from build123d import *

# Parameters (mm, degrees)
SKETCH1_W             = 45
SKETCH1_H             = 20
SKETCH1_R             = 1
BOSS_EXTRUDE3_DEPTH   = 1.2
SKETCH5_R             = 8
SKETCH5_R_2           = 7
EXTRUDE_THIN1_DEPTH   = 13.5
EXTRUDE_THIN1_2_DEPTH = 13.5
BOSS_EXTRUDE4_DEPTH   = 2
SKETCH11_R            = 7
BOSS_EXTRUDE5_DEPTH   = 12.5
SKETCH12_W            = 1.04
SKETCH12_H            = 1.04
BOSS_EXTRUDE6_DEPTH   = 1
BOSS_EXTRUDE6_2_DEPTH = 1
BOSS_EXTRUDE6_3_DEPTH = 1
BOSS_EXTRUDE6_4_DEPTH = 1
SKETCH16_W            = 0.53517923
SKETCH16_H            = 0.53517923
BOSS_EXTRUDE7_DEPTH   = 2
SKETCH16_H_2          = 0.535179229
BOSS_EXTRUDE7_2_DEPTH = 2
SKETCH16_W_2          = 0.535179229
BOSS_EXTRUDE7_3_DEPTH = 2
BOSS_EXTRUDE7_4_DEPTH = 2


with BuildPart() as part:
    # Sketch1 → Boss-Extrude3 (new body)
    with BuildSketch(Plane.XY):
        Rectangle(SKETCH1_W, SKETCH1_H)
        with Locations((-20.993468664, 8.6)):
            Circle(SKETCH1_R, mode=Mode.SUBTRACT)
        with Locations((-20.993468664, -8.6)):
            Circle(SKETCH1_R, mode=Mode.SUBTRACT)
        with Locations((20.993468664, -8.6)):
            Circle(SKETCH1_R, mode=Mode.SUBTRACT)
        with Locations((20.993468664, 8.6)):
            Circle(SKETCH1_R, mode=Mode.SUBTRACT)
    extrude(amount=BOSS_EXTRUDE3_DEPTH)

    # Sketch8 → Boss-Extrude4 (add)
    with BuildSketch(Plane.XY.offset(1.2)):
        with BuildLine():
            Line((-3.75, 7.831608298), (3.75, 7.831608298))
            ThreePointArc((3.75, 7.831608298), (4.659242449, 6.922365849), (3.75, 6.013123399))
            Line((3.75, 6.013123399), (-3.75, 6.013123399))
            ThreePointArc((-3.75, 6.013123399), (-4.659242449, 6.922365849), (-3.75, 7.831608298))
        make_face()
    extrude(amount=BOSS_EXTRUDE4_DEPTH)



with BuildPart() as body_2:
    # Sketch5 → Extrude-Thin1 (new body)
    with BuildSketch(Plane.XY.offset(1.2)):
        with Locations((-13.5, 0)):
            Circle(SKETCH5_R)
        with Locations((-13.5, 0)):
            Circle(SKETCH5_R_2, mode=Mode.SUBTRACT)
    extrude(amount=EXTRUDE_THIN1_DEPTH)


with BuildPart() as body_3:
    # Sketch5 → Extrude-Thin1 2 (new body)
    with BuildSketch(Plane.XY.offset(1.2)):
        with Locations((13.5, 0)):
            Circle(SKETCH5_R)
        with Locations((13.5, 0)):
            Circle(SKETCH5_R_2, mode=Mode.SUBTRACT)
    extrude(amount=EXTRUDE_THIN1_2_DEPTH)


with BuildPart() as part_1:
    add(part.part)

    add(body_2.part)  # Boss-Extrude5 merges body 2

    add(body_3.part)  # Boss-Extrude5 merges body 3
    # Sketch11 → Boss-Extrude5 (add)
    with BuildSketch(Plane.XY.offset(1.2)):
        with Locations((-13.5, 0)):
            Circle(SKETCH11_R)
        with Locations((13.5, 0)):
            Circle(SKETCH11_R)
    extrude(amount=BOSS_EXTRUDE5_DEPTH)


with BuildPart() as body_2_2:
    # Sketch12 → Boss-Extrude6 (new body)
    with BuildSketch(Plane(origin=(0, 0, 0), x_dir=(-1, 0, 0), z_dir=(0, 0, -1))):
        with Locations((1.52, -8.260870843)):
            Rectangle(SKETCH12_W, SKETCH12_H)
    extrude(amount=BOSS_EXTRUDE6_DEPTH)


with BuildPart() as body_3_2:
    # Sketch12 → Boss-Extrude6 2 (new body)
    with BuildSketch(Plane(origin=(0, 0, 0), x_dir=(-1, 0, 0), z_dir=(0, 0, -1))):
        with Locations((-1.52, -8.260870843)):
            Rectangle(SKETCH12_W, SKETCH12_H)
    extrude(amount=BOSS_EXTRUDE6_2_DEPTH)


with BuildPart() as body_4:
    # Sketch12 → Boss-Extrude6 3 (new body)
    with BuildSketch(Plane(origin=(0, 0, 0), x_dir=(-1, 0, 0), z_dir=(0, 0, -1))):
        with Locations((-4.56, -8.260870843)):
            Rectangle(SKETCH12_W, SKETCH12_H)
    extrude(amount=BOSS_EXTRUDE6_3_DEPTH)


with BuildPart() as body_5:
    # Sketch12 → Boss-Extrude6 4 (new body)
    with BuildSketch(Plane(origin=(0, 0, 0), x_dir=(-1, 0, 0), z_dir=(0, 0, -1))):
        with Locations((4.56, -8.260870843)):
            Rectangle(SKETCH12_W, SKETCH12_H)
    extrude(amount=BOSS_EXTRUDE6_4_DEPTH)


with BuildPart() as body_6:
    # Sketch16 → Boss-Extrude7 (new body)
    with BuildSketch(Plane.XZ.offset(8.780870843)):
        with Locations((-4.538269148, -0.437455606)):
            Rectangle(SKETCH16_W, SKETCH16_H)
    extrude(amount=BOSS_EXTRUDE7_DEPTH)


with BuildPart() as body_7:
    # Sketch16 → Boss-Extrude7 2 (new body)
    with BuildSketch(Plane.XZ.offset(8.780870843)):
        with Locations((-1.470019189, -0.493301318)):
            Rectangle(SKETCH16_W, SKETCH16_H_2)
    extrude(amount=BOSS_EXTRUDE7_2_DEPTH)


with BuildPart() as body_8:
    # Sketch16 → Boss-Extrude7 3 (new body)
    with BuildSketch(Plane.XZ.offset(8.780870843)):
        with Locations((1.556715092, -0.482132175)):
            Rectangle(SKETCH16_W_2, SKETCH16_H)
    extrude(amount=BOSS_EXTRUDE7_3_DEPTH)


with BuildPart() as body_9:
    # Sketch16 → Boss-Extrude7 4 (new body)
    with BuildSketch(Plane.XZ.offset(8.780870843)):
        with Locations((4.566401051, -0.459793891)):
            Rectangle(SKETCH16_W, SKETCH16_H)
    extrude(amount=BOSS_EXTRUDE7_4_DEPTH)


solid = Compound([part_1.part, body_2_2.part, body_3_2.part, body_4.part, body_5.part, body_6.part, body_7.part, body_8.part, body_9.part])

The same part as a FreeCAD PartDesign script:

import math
import FreeCAD as App
import Part
import Sketcher

V = App.Vector

doc = App.newDocument("Part")
body = doc.addObject("PartDesign::Body", "Body")

# Sketch on XY plane
sketch1 = doc.addObject("Sketcher::SketchObject", "Sketch")
body.addObject(sketch1)
sketch1.AttachmentSupport = (doc.XY_Plane, [""])
sketch1.MapMode = "FlatFace"
sketch1.addGeometry([
    Part.LineSegment(V(-22.5, 10, 0), V(-22.5, -10, 0)),  # 0
    Part.LineSegment(V(-22.5, -10, 0), V(22.5, -10, 0)),  # 1
    Part.LineSegment(V(22.5, -10, 0), V(22.5, 10, 0)),  # 2
    Part.LineSegment(V(22.5, 10, 0), V(-22.5, 10, 0)),  # 3
    Part.Circle(V(-21, -8.6, 0), V(0, 0, 1), 1),  # 4
    Part.Circle(V(21, -8.6, 0), V(0, 0, 1), 1),  # 5
    Part.Circle(V(-21, 8.6, 0), V(0, 0, 1), 1),  # 6
    Part.Circle(V(21, 8.6, 0), V(0, 0, 1), 1),  # 7
], False)
sketch1.addConstraint([
    Sketcher.Constraint("Coincident", 0, 2, 1, 1),
    Sketcher.Constraint("Coincident", 1, 2, 2, 1),
    Sketcher.Constraint("Coincident", 2, 2, 3, 1),
    Sketcher.Constraint("Coincident", 3, 2, 0, 1),
    Sketcher.Constraint("Vertical", 0),
    Sketcher.Constraint("Horizontal", 1),
    Sketcher.Constraint("Vertical", 2),
    Sketcher.Constraint("Horizontal", 3),
    Sketcher.Constraint("Equal", 4, 5),
    Sketcher.Constraint("Equal", 5, 6),
    Sketcher.Constraint("Equal", 6, 7),
    Sketcher.Constraint("Symmetric", 5, 3, 6, 3, -1, 1),
    Sketcher.Constraint("Symmetric", 4, 3, 7, 3, -1, 1),
    Sketcher.Constraint("Symmetric", 0, 2, 2, 2, -1, 1),
    Sketcher.Constraint("Symmetric", 4, 3, 5, 3, -2),
    Sketcher.Constraint("Diameter", 4, 2.0),
    Sketcher.Constraint("DistanceX", 1, 1, 1, 2, 45.0),
    Sketcher.Constraint("DistanceY", 0, 2, 0, 1, 20.0),
    Sketcher.Constraint("DistanceY", 4, 3, -1, 1, 8.6),
    Sketcher.Constraint("DistanceX", 4, 3, -1, 1, 20.993469),
])
pad1 = doc.addObject("PartDesign::Pad", "Pad")
body.addObject(pad1)
pad1.Profile = sketch1
pad1.Length = 1.2

# Sketch on XY plane
sketch2 = doc.addObject("Sketcher::SketchObject", "Sketch001")
body.addObject(sketch2)
sketch2.AttachmentSupport = (doc.XY_Plane, [""])
sketch2.MapMode = "FlatFace"
sketch2.AttachmentOffset = App.Placement(V(0, 0, 1.2), App.Rotation())
sketch2.addGeometry([
    Part.LineSegment(V(3.8, 7.8, 0), V(-3.8, 7.8, 0)),
    Part.ArcOfCircle(Part.Circle(V(-3.7, 6.9, 0), V(0, 0, 1), 0.9), math.radians(90), math.radians(270)),
    Part.LineSegment(V(-3.8, 6, 0), V(3.8, 6, 0)),
    Part.ArcOfCircle(Part.Circle(V(3.7, 6.9, 0), V(0, 0, 1), 0.9), math.radians(-90), math.radians(90)),
], False)
sketch2.addConstraint([
    Sketcher.Constraint("Tangent", 0, 2, 1, 1),
    Sketcher.Constraint("Tangent", 1, 2, 2, 1),
    Sketcher.Constraint("Tangent", 2, 2, 3, 1),
    Sketcher.Constraint("Tangent", 3, 2, 0, 1),
    Sketcher.Constraint("Horizontal", 0),
    Sketcher.Constraint("Horizontal", 2),
    Sketcher.Constraint("DistanceX", 0, 2, 0, 1, 7.5),
    Sketcher.Constraint("DistanceX", 1, 3, -1, 1, 3.75),
    Sketcher.Constraint("Radius", 1, 0.909242),
    Sketcher.Constraint("DistanceY", -1, 1, 0, 2, 7.831608),
])
pad2 = doc.addObject("PartDesign::Pad", "Pad001")
body.addObject(pad2)
pad2.Profile = sketch2
pad2.Length = 2
body2 = doc.addObject("PartDesign::Body", "Body001")

# Sketch on XY plane
sketch3 = doc.addObject("Sketcher::SketchObject", "Sketch002")
body2.addObject(sketch3)
sketch3.AttachmentSupport = (doc.getObject("XY_Plane001"), [""])
sketch3.MapMode = "FlatFace"
sketch3.AttachmentOffset = App.Placement(V(0, 0, 1.2), App.Rotation())
sketch3.addGeometry([
    Part.Circle(V(-14, 0, 0), V(0, 0, 1), 8),
    Part.Circle(V(-14, 0, 0), V(0, 0, 1), 7),
], False)
sketch3.addConstraint([
    Sketcher.Constraint("Coincident", 1, 3, 0, 3),
    Sketcher.Constraint("PointOnObject", 0, 3, -1),
    Sketcher.Constraint("Diameter", 0, 16.0),
    Sketcher.Constraint("Diameter", 1, 14.0),
    Sketcher.Constraint("DistanceX", 0, 3, -1, 1, 13.5),
])
pad3 = doc.addObject("PartDesign::Pad", "Pad002")
body2.addObject(pad3)
pad3.Profile = sketch3
pad3.Length = 13.5
body3 = doc.addObject("PartDesign::Body", "Body002")

# Sketch on XY plane
sketch4 = doc.addObject("Sketcher::SketchObject", "Sketch003")
body3.addObject(sketch4)
sketch4.AttachmentSupport = (doc.getObject("XY_Plane002"), [""])
sketch4.MapMode = "FlatFace"
sketch4.AttachmentOffset = App.Placement(V(0, 0, 1.2), App.Rotation())
sketch4.addGeometry([
    Part.Circle(V(14, 0, 0), V(0, 0, 1), 8),
    Part.Circle(V(14, 0, 0), V(0, 0, 1), 7),
], False)
sketch4.addConstraint([
    Sketcher.Constraint("Coincident", 1, 3, 0, 3),
    Sketcher.Constraint("PointOnObject", 0, 3, -1),
    Sketcher.Constraint("Diameter", 0, 16.0),
    Sketcher.Constraint("Diameter", 1, 14.0),
    Sketcher.Constraint("DistanceX", -1, 1, 0, 3, 13.5),
])
pad4 = doc.addObject("PartDesign::Pad", "Pad003")
body3.addObject(pad4)
pad4.Profile = sketch4
pad4.Length = 13.5
doc.recompute()

boolean = doc.addObject("PartDesign::Boolean", "Boolean")
body.addObject(boolean)
boolean.Type = "Fuse"
boolean.addObjects([body2])
doc.recompute()

boolean2 = doc.addObject("PartDesign::Boolean", "Boolean001")
body.addObject(boolean2)
boolean2.Type = "Fuse"
boolean2.addObjects([body3])

# Sketch on XY plane
sketch5 = doc.addObject("Sketcher::SketchObject", "Sketch004")
body.addObject(sketch5)
sketch5.AttachmentSupport = (doc.XY_Plane, [""])
sketch5.MapMode = "FlatFace"
sketch5.AttachmentOffset = App.Placement(V(0, 0, 1.2), App.Rotation())
sketch5.addGeometry([
    Part.Circle(V(-14, 0, 0), V(0, 0, 1), 7),
    Part.Circle(V(14, 0, 0), V(0, 0, 1), 7),
], False)
sketch5.addConstraint([
    Sketcher.Constraint("Equal", 0, 1),
    Sketcher.Constraint("Symmetric", 0, 3, 1, 3, -1, 1),
    Sketcher.Constraint("PointOnObject", 0, 3, -1),
    Sketcher.Constraint("Diameter", 0, 14.0),
    Sketcher.Constraint("DistanceX", 0, 3, 1, 3, 27.0),
])
pad5 = doc.addObject("PartDesign::Pad", "Pad004")
body.addObject(pad5)
pad5.Profile = sketch5
pad5.Length = 12.5
body4 = doc.addObject("PartDesign::Body", "Body003")

# Sketch on XY plane
sketch6 = doc.addObject("Sketcher::SketchObject", "Sketch005")
body4.addObject(sketch6)
sketch6.AttachmentSupport = (doc.getObject("XY_Plane003"), [""])
sketch6.MapMode = "FlatFace"
sketch6.addGeometry([
    Part.LineSegment(V(-1, -7.7, 0), V(-1, -8.8, 0)),
    Part.LineSegment(V(-1, -8.8, 0), V(-2, -8.8, 0)),
    Part.LineSegment(V(-2, -8.8, 0), V(-2, -7.7, 0)),
    Part.LineSegment(V(-2, -7.7, 0), V(-1, -7.7, 0)),
], False)
sketch6.addConstraint([
    Sketcher.Constraint("Coincident", 0, 2, 1, 1),
    Sketcher.Constraint("Coincident", 1, 2, 2, 1),
    Sketcher.Constraint("Coincident", 2, 2, 3, 1),
    Sketcher.Constraint("Coincident", 3, 2, 0, 1),
    Sketcher.Constraint("Vertical", 0),
    Sketcher.Constraint("Horizontal", 1),
    Sketcher.Constraint("Vertical", 2),
    Sketcher.Constraint("Horizontal", 3),
    Sketcher.Constraint("Equal", 3, 0),
    Sketcher.Constraint("DistanceX", 0, 2, -1, 1, 1.0),
    Sketcher.Constraint("DistanceX", 1, 2, 1, 1, 1.04),
    Sketcher.Constraint("DistanceY", 0, 2, -1, 1, 8.780871),
])
pad6 = doc.addObject("PartDesign::Pad", "Pad005")
body4.addObject(pad6)
pad6.Profile = sketch6
pad6.Length = 1
pad6.Reversed = True
body5 = doc.addObject("PartDesign::Body", "Body004")

# Sketch on XY plane
sketch7 = doc.addObject("Sketcher::SketchObject", "Sketch006")
body5.addObject(sketch7)
sketch7.AttachmentSupport = (doc.getObject("XY_Plane004"), [""])
sketch7.MapMode = "FlatFace"
sketch7.addGeometry([
    Part.LineSegment(V(2, -7.7, 0), V(2, -8.8, 0)),
    Part.LineSegment(V(2, -8.8, 0), V(1, -8.8, 0)),
    Part.LineSegment(V(1, -8.8, 0), V(1, -7.7, 0)),
    Part.LineSegment(V(1, -7.7, 0), V(2, -7.7, 0)),
], False)
sketch7.addConstraint([
    Sketcher.Constraint("Coincident", 0, 2, 1, 1),
    Sketcher.Constraint("Coincident", 1, 2, 2, 1),
    Sketcher.Constraint("Coincident", 2, 2, 3, 1),
    Sketcher.Constraint("Coincident", 3, 2, 0, 1),
    Sketcher.Constraint("Vertical", 0),
    Sketcher.Constraint("Horizontal", 1),
    Sketcher.Constraint("Vertical", 2),
    Sketcher.Constraint("Horizontal", 3),
    Sketcher.Constraint("Equal", 3, 0),
    Sketcher.Constraint("DistanceX", -1, 1, 1, 2, 1.0),
    Sketcher.Constraint("DistanceX", 1, 2, 1, 1, 1.04),
    Sketcher.Constraint("DistanceY", 0, 2, -1, 1, 8.780871),
])
pad7 = doc.addObject("PartDesign::Pad", "Pad006")
body5.addObject(pad7)
pad7.Profile = sketch7
pad7.Length = 1
pad7.Reversed = True
body6 = doc.addObject("PartDesign::Body", "Body005")

# Sketch on XY plane
sketch8 = doc.addObject("Sketcher::SketchObject", "Sketch007")
body6.addObject(sketch8)
sketch8.AttachmentSupport = (doc.getObject("XY_Plane005"), [""])
sketch8.MapMode = "FlatFace"
sketch8.addGeometry([
    Part.LineSegment(V(5.1, -7.7, 0), V(5.1, -8.8, 0)),
    Part.LineSegment(V(5.1, -8.8, 0), V(4, -8.8, 0)),
    Part.LineSegment(V(4, -8.8, 0), V(4, -7.7, 0)),
    Part.LineSegment(V(4, -7.7, 0), V(5.1, -7.7, 0)),
], False)
sketch8.addConstraint([
    Sketcher.Constraint("Coincident", 0, 2, 1, 1),
    Sketcher.Constraint("Coincident", 1, 2, 2, 1),
    Sketcher.Constraint("Coincident", 2, 2, 3, 1),
    Sketcher.Constraint("Coincident", 3, 2, 0, 1),
    Sketcher.Constraint("Vertical", 0),
    Sketcher.Constraint("Horizontal", 1),
    Sketcher.Constraint("Vertical", 2),
    Sketcher.Constraint("Horizontal", 3),
    Sketcher.Constraint("Equal", 3, 0),
    Sketcher.Constraint("DistanceX", 1, 2, 1, 1, 1.04),
    Sketcher.Constraint("DistanceX", -1, 1, 0, 2, 5.08),
    Sketcher.Constraint("DistanceY", 0, 2, -1, 1, 8.780871),
])
pad8 = doc.addObject("PartDesign::Pad", "Pad007")
body6.addObject(pad8)
pad8.Profile = sketch8
pad8.Length = 1
pad8.Reversed = True
body7 = doc.addObject("PartDesign::Body", "Body006")

# Sketch on XY plane
sketch9 = doc.addObject("Sketcher::SketchObject", "Sketch008")
body7.addObject(sketch9)
sketch9.AttachmentSupport = (doc.getObject("XY_Plane006"), [""])
sketch9.MapMode = "FlatFace"
sketch9.addGeometry([
    Part.LineSegment(V(-4, -7.7, 0), V(-4, -8.8, 0)),
    Part.LineSegment(V(-4, -8.8, 0), V(-5.1, -8.8, 0)),
    Part.LineSegment(V(-5.1, -8.8, 0), V(-5.1, -7.7, 0)),
    Part.LineSegment(V(-5.1, -7.7, 0), V(-4, -7.7, 0)),
], False)
sketch9.addConstraint([
    Sketcher.Constraint("Coincident", 0, 2, 1, 1),
    Sketcher.Constraint("Coincident", 1, 2, 2, 1),
    Sketcher.Constraint("Coincident", 2, 2, 3, 1),
    Sketcher.Constraint("Coincident", 3, 2, 0, 1),
    Sketcher.Constraint("Vertical", 0),
    Sketcher.Constraint("Horizontal", 1),
    Sketcher.Constraint("Vertical", 2),
    Sketcher.Constraint("Horizontal", 3),
    Sketcher.Constraint("Equal", 3, 0),
    Sketcher.Constraint("DistanceX", 1, 2, 1, 1, 1.04),
    Sketcher.Constraint("DistanceX", 0, 2, -1, 1, 4.04),
    Sketcher.Constraint("DistanceY", 0, 2, -1, 1, 8.780871),
])
pad9 = doc.addObject("PartDesign::Pad", "Pad008")
body7.addObject(pad9)
pad9.Profile = sketch9
pad9.Length = 1
pad9.Reversed = True
body8 = doc.addObject("PartDesign::Body", "Body007")

# Sketch on XZ plane
sketch10 = doc.addObject("Sketcher::SketchObject", "Sketch009")
body8.addObject(sketch10)
sketch10.AttachmentSupport = (doc.getObject("XZ_Plane007"), [""])
sketch10.MapMode = "FlatFace"
sketch10.AttachmentOffset = App.Placement(V(0, 0, 8.780871), App.Rotation())
sketch10.addGeometry([
    Part.LineSegment(V(-4.8, -0.2, 0), V(-4.8, -0.7, 0)),
    Part.LineSegment(V(-4.8, -0.7, 0), V(-4.3, -0.7, 0)),
    Part.LineSegment(V(-4.3, -0.7, 0), V(-4.3, -0.2, 0)),
    Part.LineSegment(V(-4.3, -0.2, 0), V(-4.8, -0.2, 0)),
], False)
sketch10.addConstraint([
    Sketcher.Constraint("Coincident", 0, 2, 1, 1),
    Sketcher.Constraint("Coincident", 1, 2, 2, 1),
    Sketcher.Constraint("Coincident", 2, 2, 3, 1),
    Sketcher.Constraint("Coincident", 3, 2, 0, 1),
    Sketcher.Constraint("Vertical", 0),
    Sketcher.Constraint("Horizontal", 1),
    Sketcher.Constraint("Vertical", 2),
    Sketcher.Constraint("Horizontal", 3),
    Sketcher.Constraint("Equal", 3, 0),
    Sketcher.Constraint("DistanceX", 1, 1, 1, 2, 0.535179),
    Sketcher.Constraint("DistanceX", 0, 2, -1, 1, 4.805859),
    Sketcher.Constraint("DistanceY", 0, 2, -1, 1, 0.705045),
])
pad10 = doc.addObject("PartDesign::Pad", "Pad009")
body8.addObject(pad10)
pad10.Profile = sketch10
pad10.Length = 2
body9 = doc.addObject("PartDesign::Body", "Body008")

# Sketch on XZ plane
sketch11 = doc.addObject("Sketcher::SketchObject", "Sketch010")
body9.addObject(sketch11)
sketch11.AttachmentSupport = (doc.getObject("XZ_Plane008"), [""])
sketch11.MapMode = "FlatFace"
sketch11.AttachmentOffset = App.Placement(V(0, 0, 8.780871), App.Rotation())
sketch11.addGeometry([
    Part.LineSegment(V(-1.7, -0.2, 0), V(-1.7, -0.8, 0)),
    Part.LineSegment(V(-1.7, -0.8, 0), V(-1.2, -0.8, 0)),
    Part.LineSegment(V(-1.2, -0.8, 0), V(-1.2, -0.2, 0)),
    Part.LineSegment(V(-1.2, -0.2, 0), V(-1.7, -0.2, 0)),
], False)
sketch11.addConstraint([
    Sketcher.Constraint("Coincident", 0, 2, 1, 1),
    Sketcher.Constraint("Coincident", 1, 2, 2, 1),
    Sketcher.Constraint("Coincident", 2, 2, 3, 1),
    Sketcher.Constraint("Coincident", 3, 2, 0, 1),
    Sketcher.Constraint("Vertical", 0),
    Sketcher.Constraint("Horizontal", 1),
    Sketcher.Constraint("Vertical", 2),
    Sketcher.Constraint("Horizontal", 3),
    Sketcher.Constraint("Equal", 3, 0),
    Sketcher.Constraint("DistanceX", 1, 1, 1, 2, 0.535179),
    Sketcher.Constraint("DistanceX", 0, 2, -1, 1, 1.737609),
    Sketcher.Constraint("DistanceY", 0, 2, -1, 1, 0.760891),
])
pad11 = doc.addObject("PartDesign::Pad", "Pad010")
body9.addObject(pad11)
pad11.Profile = sketch11
pad11.Length = 2
body10 = doc.addObject("PartDesign::Body", "Body009")

# Sketch on XZ plane
sketch12 = doc.addObject("Sketcher::SketchObject", "Sketch011")
body10.addObject(sketch12)
sketch12.AttachmentSupport = (doc.getObject("XZ_Plane009"), [""])
sketch12.MapMode = "FlatFace"
sketch12.AttachmentOffset = App.Placement(V(0, 0, 8.780871), App.Rotation())
sketch12.addGeometry([
    Part.LineSegment(V(1.3, -0.2, 0), V(1.3, -0.7, 0)),
    Part.LineSegment(V(1.3, -0.7, 0), V(1.8, -0.7, 0)),
    Part.LineSegment(V(1.8, -0.7, 0), V(1.8, -0.2, 0)),
    Part.LineSegment(V(1.8, -0.2, 0), V(1.3, -0.2, 0)),
], False)
sketch12.addConstraint([
    Sketcher.Constraint("Coincident", 0, 2, 1, 1),
    Sketcher.Constraint("Coincident", 1, 2, 2, 1),
    Sketcher.Constraint("Coincident", 2, 2, 3, 1),
    Sketcher.Constraint("Coincident", 3, 2, 0, 1),
    Sketcher.Constraint("Vertical", 0),
    Sketcher.Constraint("Horizontal", 1),
    Sketcher.Constraint("Vertical", 2),
    Sketcher.Constraint("Horizontal", 3),
    Sketcher.Constraint("Equal", 3, 0),
    Sketcher.Constraint("DistanceX", 1, 1, 1, 2, 0.535179),
    Sketcher.Constraint("DistanceY", 0, 2, -1, 1, 0.749722),
    Sketcher.Constraint("DistanceX", -1, 1, 0, 2, 1.289125),
])
pad12 = doc.addObject("PartDesign::Pad", "Pad011")
body10.addObject(pad12)
pad12.Profile = sketch12
pad12.Length = 2
body11 = doc.addObject("PartDesign::Body", "Body010")

# Sketch on XZ plane
sketch13 = doc.addObject("Sketcher::SketchObject", "Sketch012")
body11.addObject(sketch13)
sketch13.AttachmentSupport = (doc.getObject("XZ_Plane010"), [""])
sketch13.MapMode = "FlatFace"
sketch13.AttachmentOffset = App.Placement(V(0, 0, 8.780871), App.Rotation())
sketch13.addGeometry([
    Part.LineSegment(V(4.3, -0.2, 0), V(4.3, -0.7, 0)),
    Part.LineSegment(V(4.3, -0.7, 0), V(4.8, -0.7, 0)),
    Part.LineSegment(V(4.8, -0.7, 0), V(4.8, -0.2, 0)),
    Part.LineSegment(V(4.8, -0.2, 0), V(4.3, -0.2, 0)),
], False)
sketch13.addConstraint([
    Sketcher.Constraint("Coincident", 0, 2, 1, 1),
    Sketcher.Constraint("Coincident", 1, 2, 2, 1),
    Sketcher.Constraint("Coincident", 2, 2, 3, 1),
    Sketcher.Constraint("Coincident", 3, 2, 0, 1),
    Sketcher.Constraint("Vertical", 0),
    Sketcher.Constraint("Horizontal", 1),
    Sketcher.Constraint("Vertical", 2),
    Sketcher.Constraint("Horizontal", 3),
    Sketcher.Constraint("Equal", 3, 0),
    Sketcher.Constraint("DistanceX", 1, 1, 1, 2, 0.535179),
    Sketcher.Constraint("DistanceX", -1, 1, 0, 2, 4.298811),
    Sketcher.Constraint("DistanceY", 0, 2, -1, 1, 0.727384),
])
pad13 = doc.addObject("PartDesign::Pad", "Pad012")
body11.addObject(pad13)
pad13.Profile = sketch13
pad13.Length = 2

doc.recompute()
